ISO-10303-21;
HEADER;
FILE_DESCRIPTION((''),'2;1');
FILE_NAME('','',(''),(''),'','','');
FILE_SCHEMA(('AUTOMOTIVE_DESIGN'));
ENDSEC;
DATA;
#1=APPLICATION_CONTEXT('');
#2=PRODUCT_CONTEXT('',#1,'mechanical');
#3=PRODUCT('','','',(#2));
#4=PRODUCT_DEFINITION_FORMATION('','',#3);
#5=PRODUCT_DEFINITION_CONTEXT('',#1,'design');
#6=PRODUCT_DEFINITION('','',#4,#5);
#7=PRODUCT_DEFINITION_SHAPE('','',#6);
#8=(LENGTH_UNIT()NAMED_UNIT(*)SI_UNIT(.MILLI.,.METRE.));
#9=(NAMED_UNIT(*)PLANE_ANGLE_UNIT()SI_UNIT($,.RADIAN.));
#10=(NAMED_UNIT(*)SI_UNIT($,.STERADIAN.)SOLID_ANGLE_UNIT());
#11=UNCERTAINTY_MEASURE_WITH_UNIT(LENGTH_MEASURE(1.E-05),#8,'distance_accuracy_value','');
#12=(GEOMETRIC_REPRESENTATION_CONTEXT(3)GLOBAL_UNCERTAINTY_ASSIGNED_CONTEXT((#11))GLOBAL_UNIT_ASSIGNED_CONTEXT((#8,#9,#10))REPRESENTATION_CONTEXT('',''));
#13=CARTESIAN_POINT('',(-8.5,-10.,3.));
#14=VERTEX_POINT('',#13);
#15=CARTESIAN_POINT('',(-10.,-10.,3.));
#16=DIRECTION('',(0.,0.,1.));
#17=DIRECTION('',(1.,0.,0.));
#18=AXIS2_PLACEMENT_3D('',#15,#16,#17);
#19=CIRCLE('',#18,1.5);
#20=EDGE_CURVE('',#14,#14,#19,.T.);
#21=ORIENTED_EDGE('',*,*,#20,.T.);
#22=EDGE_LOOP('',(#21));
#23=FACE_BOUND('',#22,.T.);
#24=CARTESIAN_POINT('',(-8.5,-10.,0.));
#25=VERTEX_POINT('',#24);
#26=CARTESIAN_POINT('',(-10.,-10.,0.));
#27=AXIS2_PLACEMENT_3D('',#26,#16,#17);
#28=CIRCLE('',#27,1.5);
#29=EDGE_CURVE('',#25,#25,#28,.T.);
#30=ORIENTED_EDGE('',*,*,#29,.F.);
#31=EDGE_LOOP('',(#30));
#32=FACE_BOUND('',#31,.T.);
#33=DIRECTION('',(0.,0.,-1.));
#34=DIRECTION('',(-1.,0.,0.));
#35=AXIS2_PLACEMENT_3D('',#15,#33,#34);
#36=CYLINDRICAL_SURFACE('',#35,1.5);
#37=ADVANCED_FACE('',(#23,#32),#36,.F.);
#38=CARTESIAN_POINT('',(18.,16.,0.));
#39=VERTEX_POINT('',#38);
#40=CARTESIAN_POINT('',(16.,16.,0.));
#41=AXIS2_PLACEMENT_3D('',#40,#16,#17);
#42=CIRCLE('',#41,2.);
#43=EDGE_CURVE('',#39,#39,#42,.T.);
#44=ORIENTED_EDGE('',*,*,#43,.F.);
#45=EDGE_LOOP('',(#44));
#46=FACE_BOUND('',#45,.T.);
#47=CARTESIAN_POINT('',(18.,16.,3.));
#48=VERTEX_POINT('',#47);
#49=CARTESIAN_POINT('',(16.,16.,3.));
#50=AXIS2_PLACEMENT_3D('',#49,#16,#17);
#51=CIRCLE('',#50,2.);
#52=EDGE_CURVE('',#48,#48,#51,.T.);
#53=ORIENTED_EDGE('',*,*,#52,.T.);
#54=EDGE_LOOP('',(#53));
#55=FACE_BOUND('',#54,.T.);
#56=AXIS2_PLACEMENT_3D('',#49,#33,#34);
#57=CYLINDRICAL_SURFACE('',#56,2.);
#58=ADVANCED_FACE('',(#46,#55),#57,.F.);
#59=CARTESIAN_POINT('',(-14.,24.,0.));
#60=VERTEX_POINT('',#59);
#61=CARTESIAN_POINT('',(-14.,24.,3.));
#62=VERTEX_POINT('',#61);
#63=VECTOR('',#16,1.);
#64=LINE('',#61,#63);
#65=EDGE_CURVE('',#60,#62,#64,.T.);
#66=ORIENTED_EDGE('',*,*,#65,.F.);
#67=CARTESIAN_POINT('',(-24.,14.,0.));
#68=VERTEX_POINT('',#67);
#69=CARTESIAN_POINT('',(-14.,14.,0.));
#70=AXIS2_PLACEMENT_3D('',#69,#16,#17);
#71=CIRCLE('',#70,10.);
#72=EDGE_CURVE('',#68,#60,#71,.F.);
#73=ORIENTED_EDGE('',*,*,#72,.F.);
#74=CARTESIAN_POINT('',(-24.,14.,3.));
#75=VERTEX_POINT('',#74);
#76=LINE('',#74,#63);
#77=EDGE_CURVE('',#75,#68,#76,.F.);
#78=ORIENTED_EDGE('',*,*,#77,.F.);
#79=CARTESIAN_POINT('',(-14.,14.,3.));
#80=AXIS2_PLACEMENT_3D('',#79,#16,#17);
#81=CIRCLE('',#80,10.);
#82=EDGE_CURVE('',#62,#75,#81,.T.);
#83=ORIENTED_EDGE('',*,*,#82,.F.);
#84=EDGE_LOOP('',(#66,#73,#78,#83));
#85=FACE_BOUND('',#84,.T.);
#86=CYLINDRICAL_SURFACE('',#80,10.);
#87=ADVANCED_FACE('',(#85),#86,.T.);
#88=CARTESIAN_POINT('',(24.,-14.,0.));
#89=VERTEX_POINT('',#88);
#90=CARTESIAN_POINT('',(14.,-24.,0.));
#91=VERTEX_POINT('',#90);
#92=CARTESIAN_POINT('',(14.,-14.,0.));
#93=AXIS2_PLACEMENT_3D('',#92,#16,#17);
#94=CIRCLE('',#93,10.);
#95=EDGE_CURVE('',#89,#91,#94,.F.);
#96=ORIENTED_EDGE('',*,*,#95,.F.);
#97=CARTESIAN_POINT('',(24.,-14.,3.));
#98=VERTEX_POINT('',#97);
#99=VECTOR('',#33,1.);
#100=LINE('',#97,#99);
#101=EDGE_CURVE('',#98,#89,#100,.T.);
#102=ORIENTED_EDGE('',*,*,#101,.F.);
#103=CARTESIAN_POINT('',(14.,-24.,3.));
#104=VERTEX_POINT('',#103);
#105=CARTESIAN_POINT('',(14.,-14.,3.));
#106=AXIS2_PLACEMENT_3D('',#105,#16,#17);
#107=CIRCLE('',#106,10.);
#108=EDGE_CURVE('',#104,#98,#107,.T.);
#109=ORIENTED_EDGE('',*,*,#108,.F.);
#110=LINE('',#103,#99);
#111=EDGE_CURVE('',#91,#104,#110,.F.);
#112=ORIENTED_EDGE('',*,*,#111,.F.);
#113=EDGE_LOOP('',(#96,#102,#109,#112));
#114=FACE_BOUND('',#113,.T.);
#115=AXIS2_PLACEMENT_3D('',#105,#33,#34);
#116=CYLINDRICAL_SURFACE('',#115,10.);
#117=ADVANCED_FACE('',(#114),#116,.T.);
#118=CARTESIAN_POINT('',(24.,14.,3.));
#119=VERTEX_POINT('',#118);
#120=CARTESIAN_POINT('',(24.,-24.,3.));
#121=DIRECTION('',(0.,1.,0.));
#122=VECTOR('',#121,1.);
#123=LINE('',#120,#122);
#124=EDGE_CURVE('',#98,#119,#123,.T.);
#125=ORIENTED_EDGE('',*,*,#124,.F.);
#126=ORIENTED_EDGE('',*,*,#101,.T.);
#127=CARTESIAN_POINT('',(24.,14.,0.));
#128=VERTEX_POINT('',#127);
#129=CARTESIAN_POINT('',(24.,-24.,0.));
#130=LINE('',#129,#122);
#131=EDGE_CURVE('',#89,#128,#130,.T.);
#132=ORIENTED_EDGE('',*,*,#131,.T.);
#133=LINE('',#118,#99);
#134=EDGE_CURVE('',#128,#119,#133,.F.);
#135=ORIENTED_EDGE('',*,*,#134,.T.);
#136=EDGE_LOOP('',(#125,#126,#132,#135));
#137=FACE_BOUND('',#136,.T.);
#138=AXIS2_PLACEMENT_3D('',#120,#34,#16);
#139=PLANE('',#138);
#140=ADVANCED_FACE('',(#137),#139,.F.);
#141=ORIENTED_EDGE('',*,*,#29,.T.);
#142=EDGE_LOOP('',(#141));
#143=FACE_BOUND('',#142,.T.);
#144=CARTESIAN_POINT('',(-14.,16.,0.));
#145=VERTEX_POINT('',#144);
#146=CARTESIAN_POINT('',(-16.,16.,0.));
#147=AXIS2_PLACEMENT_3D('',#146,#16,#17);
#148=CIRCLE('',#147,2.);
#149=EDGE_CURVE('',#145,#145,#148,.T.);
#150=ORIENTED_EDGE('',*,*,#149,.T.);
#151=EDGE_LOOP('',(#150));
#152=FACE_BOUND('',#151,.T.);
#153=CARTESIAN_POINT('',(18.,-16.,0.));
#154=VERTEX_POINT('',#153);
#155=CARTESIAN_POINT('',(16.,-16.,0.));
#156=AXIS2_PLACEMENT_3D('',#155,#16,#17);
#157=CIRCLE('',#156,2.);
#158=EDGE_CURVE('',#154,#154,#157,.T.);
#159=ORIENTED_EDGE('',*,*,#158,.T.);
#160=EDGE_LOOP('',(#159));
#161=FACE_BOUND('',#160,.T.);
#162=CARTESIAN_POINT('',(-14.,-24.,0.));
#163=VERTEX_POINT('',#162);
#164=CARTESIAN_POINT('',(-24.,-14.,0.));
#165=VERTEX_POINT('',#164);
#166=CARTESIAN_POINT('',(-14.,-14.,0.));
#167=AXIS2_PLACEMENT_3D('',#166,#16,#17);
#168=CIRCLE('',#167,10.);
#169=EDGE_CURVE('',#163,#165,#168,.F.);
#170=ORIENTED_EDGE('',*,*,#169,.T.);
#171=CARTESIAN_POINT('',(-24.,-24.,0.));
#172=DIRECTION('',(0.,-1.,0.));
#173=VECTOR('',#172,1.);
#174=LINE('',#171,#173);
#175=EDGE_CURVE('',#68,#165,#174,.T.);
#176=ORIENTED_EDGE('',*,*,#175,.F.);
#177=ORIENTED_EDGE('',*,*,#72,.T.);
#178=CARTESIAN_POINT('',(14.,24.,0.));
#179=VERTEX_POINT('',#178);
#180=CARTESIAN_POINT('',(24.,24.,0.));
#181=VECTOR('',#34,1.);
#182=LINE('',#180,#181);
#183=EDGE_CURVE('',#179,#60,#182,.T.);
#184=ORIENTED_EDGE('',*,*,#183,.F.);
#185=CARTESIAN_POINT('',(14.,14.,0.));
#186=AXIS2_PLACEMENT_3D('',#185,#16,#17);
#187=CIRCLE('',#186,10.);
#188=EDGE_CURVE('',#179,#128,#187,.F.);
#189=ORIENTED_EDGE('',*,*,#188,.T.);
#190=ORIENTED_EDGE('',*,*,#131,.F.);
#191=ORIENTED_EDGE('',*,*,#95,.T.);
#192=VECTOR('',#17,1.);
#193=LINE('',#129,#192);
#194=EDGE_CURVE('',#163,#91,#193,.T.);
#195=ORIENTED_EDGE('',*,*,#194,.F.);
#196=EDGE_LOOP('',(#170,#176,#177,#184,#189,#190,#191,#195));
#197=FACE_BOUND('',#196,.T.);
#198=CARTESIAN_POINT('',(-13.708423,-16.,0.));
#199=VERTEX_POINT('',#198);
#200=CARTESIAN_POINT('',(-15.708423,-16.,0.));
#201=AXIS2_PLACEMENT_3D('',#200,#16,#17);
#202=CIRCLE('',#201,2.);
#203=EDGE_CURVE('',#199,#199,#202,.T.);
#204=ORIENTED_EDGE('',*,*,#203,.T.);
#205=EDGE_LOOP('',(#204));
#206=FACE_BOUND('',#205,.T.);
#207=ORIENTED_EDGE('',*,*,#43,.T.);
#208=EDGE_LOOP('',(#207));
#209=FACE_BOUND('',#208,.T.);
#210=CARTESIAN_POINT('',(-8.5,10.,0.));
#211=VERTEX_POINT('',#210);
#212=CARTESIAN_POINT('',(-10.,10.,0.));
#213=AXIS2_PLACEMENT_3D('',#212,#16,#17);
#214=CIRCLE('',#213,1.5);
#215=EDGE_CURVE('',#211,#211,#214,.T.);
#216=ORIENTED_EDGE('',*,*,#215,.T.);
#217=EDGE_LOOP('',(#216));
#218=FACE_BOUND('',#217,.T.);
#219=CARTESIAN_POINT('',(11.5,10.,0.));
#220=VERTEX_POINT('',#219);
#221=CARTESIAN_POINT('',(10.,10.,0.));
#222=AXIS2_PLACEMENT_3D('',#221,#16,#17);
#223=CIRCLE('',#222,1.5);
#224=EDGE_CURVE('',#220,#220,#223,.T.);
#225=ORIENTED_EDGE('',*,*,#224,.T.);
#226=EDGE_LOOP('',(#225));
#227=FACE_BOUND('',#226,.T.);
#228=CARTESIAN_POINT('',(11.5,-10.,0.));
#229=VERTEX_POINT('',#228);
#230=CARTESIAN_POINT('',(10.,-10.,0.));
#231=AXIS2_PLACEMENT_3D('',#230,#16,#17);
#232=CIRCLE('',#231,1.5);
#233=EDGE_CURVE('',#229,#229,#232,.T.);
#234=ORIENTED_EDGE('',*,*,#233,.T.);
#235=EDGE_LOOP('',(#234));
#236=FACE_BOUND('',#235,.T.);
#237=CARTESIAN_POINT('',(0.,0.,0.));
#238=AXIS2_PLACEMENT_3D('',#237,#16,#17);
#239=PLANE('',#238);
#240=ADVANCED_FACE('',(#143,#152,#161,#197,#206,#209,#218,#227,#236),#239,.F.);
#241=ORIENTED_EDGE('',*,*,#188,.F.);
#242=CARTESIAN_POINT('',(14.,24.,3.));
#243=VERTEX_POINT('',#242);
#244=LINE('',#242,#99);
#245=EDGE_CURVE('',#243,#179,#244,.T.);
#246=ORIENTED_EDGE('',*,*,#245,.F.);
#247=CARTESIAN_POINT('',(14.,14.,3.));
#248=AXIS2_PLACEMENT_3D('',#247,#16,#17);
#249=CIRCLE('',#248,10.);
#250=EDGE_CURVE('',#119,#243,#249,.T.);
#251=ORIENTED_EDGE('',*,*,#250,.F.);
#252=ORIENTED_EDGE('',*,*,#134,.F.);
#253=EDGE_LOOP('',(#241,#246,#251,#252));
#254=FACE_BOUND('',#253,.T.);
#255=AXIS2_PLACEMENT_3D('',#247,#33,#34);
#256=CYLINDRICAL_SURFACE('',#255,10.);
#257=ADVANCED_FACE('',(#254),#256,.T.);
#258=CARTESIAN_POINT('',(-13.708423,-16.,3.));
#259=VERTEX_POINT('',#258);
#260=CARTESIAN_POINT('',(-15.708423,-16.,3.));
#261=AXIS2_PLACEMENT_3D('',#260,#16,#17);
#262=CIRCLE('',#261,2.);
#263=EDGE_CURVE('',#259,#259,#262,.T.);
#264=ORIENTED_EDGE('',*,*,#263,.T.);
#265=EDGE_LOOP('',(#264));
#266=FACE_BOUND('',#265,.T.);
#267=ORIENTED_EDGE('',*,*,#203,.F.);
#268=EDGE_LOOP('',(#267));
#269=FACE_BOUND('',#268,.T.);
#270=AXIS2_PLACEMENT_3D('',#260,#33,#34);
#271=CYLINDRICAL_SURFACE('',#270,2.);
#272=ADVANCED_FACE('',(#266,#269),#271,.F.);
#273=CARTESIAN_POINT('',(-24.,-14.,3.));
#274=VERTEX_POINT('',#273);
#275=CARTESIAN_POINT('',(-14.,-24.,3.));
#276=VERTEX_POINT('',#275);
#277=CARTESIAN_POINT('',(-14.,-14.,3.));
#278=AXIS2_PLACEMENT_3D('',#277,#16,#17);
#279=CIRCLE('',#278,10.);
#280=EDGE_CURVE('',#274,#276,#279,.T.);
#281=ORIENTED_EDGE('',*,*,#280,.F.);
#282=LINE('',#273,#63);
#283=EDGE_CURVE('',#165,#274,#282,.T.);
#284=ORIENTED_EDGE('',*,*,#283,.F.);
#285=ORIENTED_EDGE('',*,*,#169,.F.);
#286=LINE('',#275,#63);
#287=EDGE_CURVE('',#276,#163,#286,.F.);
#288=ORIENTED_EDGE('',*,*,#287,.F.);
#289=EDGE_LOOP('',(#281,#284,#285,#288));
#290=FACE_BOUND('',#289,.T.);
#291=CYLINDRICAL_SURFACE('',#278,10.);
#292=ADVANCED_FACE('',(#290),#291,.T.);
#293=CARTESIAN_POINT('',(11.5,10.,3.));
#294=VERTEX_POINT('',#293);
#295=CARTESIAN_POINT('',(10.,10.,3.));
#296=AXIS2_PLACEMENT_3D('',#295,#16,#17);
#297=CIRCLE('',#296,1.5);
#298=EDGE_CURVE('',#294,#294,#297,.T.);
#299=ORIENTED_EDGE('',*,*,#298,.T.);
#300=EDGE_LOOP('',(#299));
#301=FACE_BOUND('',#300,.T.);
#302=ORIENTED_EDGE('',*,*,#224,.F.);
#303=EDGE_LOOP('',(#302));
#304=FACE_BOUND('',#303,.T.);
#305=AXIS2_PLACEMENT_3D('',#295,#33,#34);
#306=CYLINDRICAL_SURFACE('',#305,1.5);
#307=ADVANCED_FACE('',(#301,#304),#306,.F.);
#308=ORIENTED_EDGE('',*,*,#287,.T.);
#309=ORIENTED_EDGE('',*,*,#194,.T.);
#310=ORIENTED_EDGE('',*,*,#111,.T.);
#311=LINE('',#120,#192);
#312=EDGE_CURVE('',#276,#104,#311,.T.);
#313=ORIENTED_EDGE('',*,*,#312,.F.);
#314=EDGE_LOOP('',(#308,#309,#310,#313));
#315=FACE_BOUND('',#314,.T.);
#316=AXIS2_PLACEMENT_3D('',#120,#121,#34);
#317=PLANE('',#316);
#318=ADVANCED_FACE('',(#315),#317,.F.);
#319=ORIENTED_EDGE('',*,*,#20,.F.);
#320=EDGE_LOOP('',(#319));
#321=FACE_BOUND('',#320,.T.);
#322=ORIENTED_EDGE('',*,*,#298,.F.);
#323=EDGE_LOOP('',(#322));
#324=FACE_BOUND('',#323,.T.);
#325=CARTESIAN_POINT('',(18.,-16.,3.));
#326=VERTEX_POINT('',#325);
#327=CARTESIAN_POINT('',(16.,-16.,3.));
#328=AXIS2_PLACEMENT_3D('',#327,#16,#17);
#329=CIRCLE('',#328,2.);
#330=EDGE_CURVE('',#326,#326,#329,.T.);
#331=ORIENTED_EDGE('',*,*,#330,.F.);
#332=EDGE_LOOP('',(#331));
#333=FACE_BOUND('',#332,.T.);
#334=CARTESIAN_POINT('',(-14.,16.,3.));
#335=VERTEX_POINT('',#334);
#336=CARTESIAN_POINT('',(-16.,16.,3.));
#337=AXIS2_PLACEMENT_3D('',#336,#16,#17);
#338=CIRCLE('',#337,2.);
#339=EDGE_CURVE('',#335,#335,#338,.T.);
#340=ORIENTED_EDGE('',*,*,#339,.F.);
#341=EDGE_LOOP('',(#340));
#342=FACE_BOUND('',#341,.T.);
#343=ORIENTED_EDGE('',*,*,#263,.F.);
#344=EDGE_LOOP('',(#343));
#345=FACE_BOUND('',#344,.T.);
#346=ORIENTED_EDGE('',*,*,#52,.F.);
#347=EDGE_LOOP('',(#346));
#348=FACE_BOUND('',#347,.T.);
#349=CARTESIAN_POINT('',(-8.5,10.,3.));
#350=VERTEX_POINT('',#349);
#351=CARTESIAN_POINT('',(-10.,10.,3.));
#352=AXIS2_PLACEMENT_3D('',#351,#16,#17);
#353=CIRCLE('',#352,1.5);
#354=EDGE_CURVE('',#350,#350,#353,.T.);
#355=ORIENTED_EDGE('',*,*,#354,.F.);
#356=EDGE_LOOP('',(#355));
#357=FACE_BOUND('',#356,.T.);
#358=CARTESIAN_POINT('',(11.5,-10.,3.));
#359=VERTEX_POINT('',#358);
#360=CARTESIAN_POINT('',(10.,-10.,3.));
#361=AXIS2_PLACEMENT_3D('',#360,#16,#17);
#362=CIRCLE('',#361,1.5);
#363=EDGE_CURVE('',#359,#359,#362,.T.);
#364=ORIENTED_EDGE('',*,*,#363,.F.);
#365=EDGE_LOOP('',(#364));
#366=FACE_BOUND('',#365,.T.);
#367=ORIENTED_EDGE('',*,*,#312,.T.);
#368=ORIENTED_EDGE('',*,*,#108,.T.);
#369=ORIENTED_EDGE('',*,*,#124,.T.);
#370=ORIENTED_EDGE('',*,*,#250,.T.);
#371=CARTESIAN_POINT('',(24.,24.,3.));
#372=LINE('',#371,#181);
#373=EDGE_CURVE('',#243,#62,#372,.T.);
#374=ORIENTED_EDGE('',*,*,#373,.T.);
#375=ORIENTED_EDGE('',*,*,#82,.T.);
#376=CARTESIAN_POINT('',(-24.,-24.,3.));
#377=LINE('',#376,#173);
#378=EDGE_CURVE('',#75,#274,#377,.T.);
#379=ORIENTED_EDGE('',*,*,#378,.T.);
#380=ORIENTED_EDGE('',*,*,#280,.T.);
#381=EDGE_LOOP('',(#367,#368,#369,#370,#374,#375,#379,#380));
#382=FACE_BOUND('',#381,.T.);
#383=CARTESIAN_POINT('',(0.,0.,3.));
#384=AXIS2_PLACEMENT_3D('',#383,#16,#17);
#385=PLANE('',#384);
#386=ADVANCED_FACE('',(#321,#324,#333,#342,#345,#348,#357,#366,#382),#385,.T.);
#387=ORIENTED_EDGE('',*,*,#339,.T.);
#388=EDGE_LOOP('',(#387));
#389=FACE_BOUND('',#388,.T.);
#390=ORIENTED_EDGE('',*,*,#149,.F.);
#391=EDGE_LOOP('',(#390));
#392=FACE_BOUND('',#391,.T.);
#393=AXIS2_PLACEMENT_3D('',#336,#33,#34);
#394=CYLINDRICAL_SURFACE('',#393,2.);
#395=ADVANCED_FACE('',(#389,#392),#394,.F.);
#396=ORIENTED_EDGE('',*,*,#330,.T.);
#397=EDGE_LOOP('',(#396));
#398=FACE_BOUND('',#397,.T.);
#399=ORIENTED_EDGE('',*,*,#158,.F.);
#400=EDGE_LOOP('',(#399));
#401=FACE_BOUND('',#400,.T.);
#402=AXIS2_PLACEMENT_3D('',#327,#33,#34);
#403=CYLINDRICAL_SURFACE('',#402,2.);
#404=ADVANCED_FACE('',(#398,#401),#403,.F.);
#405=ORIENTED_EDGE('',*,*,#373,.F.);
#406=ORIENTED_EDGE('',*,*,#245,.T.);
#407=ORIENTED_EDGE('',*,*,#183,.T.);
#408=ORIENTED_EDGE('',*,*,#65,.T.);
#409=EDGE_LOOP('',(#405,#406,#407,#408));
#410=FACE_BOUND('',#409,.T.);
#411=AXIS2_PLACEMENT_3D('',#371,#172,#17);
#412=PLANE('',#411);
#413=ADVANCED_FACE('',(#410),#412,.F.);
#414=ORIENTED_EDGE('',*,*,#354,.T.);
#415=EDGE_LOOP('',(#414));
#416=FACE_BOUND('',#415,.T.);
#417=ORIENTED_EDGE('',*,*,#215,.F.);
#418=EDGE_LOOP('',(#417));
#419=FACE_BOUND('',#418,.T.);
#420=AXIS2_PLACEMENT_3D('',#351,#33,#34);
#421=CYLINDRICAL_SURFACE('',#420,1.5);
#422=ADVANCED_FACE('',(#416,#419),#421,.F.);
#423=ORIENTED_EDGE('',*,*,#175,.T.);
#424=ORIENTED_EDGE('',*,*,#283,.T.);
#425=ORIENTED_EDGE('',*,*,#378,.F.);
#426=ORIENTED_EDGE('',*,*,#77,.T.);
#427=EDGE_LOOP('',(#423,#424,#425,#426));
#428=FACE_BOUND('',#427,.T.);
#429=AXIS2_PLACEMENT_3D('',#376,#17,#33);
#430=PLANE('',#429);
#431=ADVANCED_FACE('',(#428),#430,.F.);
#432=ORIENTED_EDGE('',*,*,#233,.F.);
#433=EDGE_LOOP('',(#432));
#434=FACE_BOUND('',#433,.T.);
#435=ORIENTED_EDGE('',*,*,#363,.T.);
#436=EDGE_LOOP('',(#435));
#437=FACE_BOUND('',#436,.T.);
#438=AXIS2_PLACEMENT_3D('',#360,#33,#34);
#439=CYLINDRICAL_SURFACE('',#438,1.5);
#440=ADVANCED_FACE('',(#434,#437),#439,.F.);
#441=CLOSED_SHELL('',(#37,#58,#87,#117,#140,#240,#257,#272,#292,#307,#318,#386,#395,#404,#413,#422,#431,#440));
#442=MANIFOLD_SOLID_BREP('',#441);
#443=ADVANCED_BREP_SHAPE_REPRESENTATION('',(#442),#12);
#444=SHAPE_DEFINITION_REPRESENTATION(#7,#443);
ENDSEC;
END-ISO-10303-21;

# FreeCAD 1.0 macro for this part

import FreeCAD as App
import Part
import Sketcher
from FreeCAD import Vector


def edges_at(feature, points):
    """Names of the edges that pass closest to the given points."""
    edges = feature.Shape.Edges
    near = lambda p: min(range(len(edges)), key=lambda i: edges[i].distToShape(Part.Vertex(*p))[0])
    return sorted({f"Edge{near(p) + 1}" for p in points})


def add_polygon(sketch, points):
    """Adds a closed chain of lines whose ends are joined by coincident constraints."""
    first, n = sketch.GeometryCount, len(points)
    for a, b in zip(points, points[1:] + points[:1]):
        sketch.addGeometry(Part.LineSegment(App.Vector(*a, 0), App.Vector(*b, 0)), False)
    for i in range(n):
        sketch.addConstraint(Sketcher.Constraint("Coincident", first + i, 2, first + (i + 1) % n, 1))

doc = App.newDocument("Part")
body = doc.addObject("PartDesign::Body", "Body")

# Sketch on XY plane
sketch1 = body.newObject("Sketcher::SketchObject", "Sketch")
sketch1.AttachmentSupport = (doc.getObject("XY_Plane"), [""])
sketch1.MapMode = "FlatFace"
add_polygon(sketch1, [(-24, 24), (-24, -24), (24, -24), (24, 24)])  # lines 0-3
sketch1.addGeometry(Part.Circle(Vector(-15.7, -16, 0), Vector(0, 0, 1), 2), False)  # 4
sketch1.addGeometry(Part.Circle(Vector(-10, -10, 0), Vector(0, 0, 1), 1.5), False)  # 5
sketch1.addGeometry(Part.Circle(Vector(16, -16, 0), Vector(0, 0, 1), 2), False)  # 6
sketch1.addGeometry(Part.Circle(Vector(10, -10, 0), Vector(0, 0, 1), 1.5), False)  # 7
sketch1.addGeometry(Part.Circle(Vector(-10, 10, 0), Vector(0, 0, 1), 1.5), False)  # 8
sketch1.addGeometry(Part.Circle(Vector(-16, 16, 0), Vector(0, 0, 1), 2), False)  # 9
sketch1.addGeometry(Part.Circle(Vector(10, 10, 0), Vector(0, 0, 1), 1.5), False)  # 10
sketch1.addGeometry(Part.Circle(Vector(16, 16, 0), Vector(0, 0, 1), 2), False)  # 11
sketch1.addConstraint([
    Sketcher.Constraint("Vertical", 0),
    Sketcher.Constraint("Horizontal", 1),
    Sketcher.Constraint("Vertical", 2),
    Sketcher.Constraint("Horizontal", 3),
    Sketcher.Constraint("Equal", 4, 6),
    Sketcher.Constraint("Equal", 5, 7),
    Sketcher.Constraint("Equal", 7, 8),
    Sketcher.Constraint("Equal", 6, 9),
    Sketcher.Constraint("Equal", 8, 10),
    Sketcher.Constraint("Equal", 9, 11),
    Sketcher.Constraint("Symmetric", 7, 3, 8, 3, -1, 1),
    Sketcher.Constraint("Symmetric", 6, 3, 9, 3, -1, 1),
    Sketcher.Constraint("Symmetric", 5, 3, 10, 3, -1, 1),
    Sketcher.Constraint("Symmetric", 0, 2, 2, 2, -1, 1),
    Sketcher.Constraint("Symmetric", 5, 3, 7, 3, -2),
    Sketcher.Constraint("Symmetric", 9, 3, 11, 3, -2),
    Sketcher.Constraint("Horizontal", 4, 3, 6, 3),
    Sketcher.Constraint("Equal", 3, 0),
    Sketcher.Constraint("Diameter", 4, 4.0),
    Sketcher.Constraint("Diameter", 5, 3.0),
    Sketcher.Constraint("DistanceX", 1, 1, 1, 2, 48.0),
    Sketcher.Constraint("DistanceY", 4, 3, -1, 1, 16.0),
    Sketcher.Constraint("DistanceX", 5, 3, -1, 1, 10.0),
    Sketcher.Constraint("DistanceY", 5, 3, -1, 1, 10.0),
    Sketcher.Constraint("DistanceX", -1, 1, 6, 3, 16.0),
    Sketcher.Constraint("DistanceX", 4, 3, -1, 1, 15.708423),
])
pad1 = body.newObject("PartDesign::Pad", "Pad")
pad1.Profile = sketch1
pad1.Length = 3
doc.recompute()

fillet = body.newObject("PartDesign::Fillet", "Fillet")
fillet.Base = (pad1, edges_at(pad1, [(-24, 24, 1.5)]))
fillet.Radius = 10
doc.recompute()

fillet2 = body.newObject("PartDesign::Fillet", "Fillet001")
fillet2.Base = (fillet, edges_at(fillet, [(24, 24, 1.5)]))
fillet2.Radius = 10
doc.recompute()

fillet3 = body.newObject("PartDesign::Fillet", "Fillet002")
fillet3.Base = (fillet2, edges_at(fillet2, [(24, -24, 1.5)]))
fillet3.Radius = 10
doc.recompute()

fillet4 = body.newObject("PartDesign::Fillet", "Fillet003")
fillet4.Base = (fillet3, edges_at(fillet3, [(-24, -24, 1.5)]))
fillet4.Radius = 10

doc.recompute()
